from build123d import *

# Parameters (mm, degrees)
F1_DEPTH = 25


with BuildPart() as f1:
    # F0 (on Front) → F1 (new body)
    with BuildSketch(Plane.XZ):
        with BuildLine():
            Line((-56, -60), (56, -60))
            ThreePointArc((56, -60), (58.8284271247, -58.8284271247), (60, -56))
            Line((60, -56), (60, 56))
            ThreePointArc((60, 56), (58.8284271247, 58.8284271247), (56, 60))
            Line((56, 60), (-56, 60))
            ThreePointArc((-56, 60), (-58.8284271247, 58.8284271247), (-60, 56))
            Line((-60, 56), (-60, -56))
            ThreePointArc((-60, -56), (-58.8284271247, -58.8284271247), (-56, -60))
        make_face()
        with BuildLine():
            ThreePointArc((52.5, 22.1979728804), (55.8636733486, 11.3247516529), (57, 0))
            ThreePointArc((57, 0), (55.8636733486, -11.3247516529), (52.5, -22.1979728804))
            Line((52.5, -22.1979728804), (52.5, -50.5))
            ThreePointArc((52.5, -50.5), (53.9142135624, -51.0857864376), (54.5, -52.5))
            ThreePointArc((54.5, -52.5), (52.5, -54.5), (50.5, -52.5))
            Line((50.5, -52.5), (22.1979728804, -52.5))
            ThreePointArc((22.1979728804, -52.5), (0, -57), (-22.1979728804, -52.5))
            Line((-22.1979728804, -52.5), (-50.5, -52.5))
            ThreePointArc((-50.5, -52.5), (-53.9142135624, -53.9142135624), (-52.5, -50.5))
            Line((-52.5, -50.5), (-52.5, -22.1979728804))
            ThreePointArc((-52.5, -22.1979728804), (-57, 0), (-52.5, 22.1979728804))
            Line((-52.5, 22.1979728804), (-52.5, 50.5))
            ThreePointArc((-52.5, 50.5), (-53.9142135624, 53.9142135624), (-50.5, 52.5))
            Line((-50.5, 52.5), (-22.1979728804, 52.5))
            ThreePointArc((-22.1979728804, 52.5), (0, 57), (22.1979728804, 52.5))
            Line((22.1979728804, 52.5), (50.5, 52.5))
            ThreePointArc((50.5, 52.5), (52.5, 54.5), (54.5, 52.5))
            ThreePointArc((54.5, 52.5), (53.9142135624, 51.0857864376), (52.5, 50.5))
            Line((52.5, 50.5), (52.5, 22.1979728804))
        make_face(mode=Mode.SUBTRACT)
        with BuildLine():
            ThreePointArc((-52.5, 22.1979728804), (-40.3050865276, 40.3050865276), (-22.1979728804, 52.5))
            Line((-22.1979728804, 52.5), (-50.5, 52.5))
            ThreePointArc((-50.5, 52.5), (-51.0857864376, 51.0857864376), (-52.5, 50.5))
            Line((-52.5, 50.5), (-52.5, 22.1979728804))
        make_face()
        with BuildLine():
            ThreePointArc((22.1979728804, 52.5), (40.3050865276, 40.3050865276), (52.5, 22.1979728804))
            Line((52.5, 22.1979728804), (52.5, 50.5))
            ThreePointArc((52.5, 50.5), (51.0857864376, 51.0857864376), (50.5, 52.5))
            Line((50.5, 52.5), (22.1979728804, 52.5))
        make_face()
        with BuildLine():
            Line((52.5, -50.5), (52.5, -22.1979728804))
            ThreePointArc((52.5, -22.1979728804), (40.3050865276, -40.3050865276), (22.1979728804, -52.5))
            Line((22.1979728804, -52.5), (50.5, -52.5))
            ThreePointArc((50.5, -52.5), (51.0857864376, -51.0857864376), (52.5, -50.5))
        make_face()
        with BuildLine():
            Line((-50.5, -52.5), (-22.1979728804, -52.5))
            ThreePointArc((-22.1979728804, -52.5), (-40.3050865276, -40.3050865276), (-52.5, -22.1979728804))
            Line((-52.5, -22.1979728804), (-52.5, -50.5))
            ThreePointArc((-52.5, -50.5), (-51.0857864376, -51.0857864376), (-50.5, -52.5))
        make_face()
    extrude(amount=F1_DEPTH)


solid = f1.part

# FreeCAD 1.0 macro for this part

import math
import FreeCAD as App
import Part
import Sketcher

V = App.Vector
Q = App.Units.Quantity

doc = App.newDocument("Part")
body = doc.addObject("PartDesign::Body", "Body")

sketch1 = body.newObject("Sketcher::SketchObject", "Sketch")
sketch1.AttachmentSupport = (doc.getObject("XZ_Plane"), [""])
sketch1.MapMode = "FlatFace"
sketch1.addGeometry([
    Part.LineSegment(V(-56, -60, 0), V(56, -60, 0)),
    Part.ArcOfCircle(Part.Circle(V(56, -56, 0), V(0, 0, 1), 4), math.radians(-90), math.radians(0)),
    Part.LineSegment(V(60, -56, 0), V(60, 56, 0)),
    Part.ArcOfCircle(Part.Circle(V(56, 56, 0), V(0, 0, 1), 4), math.radians(0), math.radians(90)),
    Part.LineSegment(V(56, 60, 0), V(-56, 60, 0)),
    Part.ArcOfCircle(Part.Circle(V(-56, 56, 0), V(0, 0, 1), 4), math.radians(90), math.radians(180)),
    Part.LineSegment(V(-60, 56, 0), V(-60, -56, 0)),
    Part.ArcOfCircle(Part.Circle(V(-56, -56, 0), V(0, 0, 1), 4), math.radians(180), math.radians(270)),
    Part.ArcOfCircle(Part.Circle(V(0, 0, 0), V(0, 0, 1), 57), math.radians(0), math.radians(22.919542)),
    Part.ArcOfCircle(Part.Circle(V(0, 0, 0), V(0, 0, 1), 57), math.radians(-22.919542), math.radians(0)),
    Part.ArcOfCircle(Part.Circle(V(0, 0, 0), V(0, 0, 1), 57), math.radians(-67.080458), math.radians(-22.919542)),
    Part.ArcOfCircle(Part.Circle(V(0, 0, 0), V(0, 0, 1), 57), math.radians(-112.919542), math.radians(-67.080458)),
    Part.ArcOfCircle(Part.Circle(V(0, 0, 0), V(0, 0, 1), 57), math.radians(-157.080458), math.radians(-112.919542)),
    Part.ArcOfCircle(Part.Circle(V(0, 0, 0), V(0, 0, 1), 57), math.radians(157.080458), math.radians(202.919542)),
    Part.ArcOfCircle(Part.Circle(V(0, 0, 0), V(0, 0, 1), 57), math.radians(112.919542), math.radians(157.080458)),
    Part.ArcOfCircle(Part.Circle(V(0, 0, 0), V(0, 0, 1), 57), math.radians(67.080458), math.radians(112.919542)),
    Part.ArcOfCircle(Part.Circle(V(0, 0, 0), V(0, 0, 1), 57), math.radians(22.919542), math.radians(67.080458)),
    Part.ArcOfCircle(Part.Circle(V(-52.5, -52.5, 0), V(0, 0, 1), 2), math.radians(90), math.radians(360)),
    Part.ArcOfCircle(Part.Circle(V(-52.5, -52.5, 0), V(0, 0, 1), 2), math.radians(0), math.radians(90)),
    Part.ArcOfCircle(Part.Circle(V(52.5, -52.5, 0), V(0, 0, 1), 2), math.radians(0), math.radians(90)),
    Part.ArcOfCircle(Part.Circle(V(52.5, -52.5, 0), V(0, 0, 1), 2), math.radians(180), math.radians(360)),
    Part.ArcOfCircle(Part.Circle(V(52.5, -52.5, 0), V(0, 0, 1), 2), math.radians(90), math.radians(180)),
    Part.ArcOfCircle(Part.Circle(V(52.5, 52.5, 0), V(0, 0, 1), 2), math.radians(0), math.radians(180)),
    Part.ArcOfCircle(Part.Circle(V(52.5, 52.5, 0), V(0, 0, 1), 2), math.radians(-90), math.radians(0)),
    Part.ArcOfCircle(Part.Circle(V(52.5, 52.5, 0), V(0, 0, 1), 2), math.radians(180), math.radians(270)),
    Part.ArcOfCircle(Part.Circle(V(-52.5, 52.5, 0), V(0, 0, 1), 2), math.radians(0), math.radians(270)),
    Part.ArcOfCircle(Part.Circle(V(-52.5, 52.5, 0), V(0, 0, 1), 2), math.radians(-90), math.radians(0)),
], False)
sketch1.addConstraint([
    Sketcher.Constraint("Tangent", 0, 2, 1, 1),
    Sketcher.Constraint("Tangent", 1, 2, 2, 1),
    Sketcher.Constraint("Tangent", 2, 2, 3, 1),
    Sketcher.Constraint("Tangent", 3, 2, 4, 1),
    Sketcher.Constraint("Tangent", 4, 2, 5, 1),
    Sketcher.Constraint("Tangent", 5, 2, 6, 1),
    Sketcher.Constraint("Tangent", 6, 2, 7, 1),
    Sketcher.Constraint("Tangent", 7, 2, 0, 1),
    Sketcher.Constraint("Tangent", 8, 1, 9, 2),
    Sketcher.Constraint("Tangent", 9, 1, 10, 2),
    Sketcher.Constraint("Tangent", 10, 1, 11, 2),
    Sketcher.Constraint("Tangent", 11, 1, 12, 2),
    Sketcher.Constraint("Tangent", 12, 1, 13, 2),
    Sketcher.Constraint("Tangent", 13, 1, 14, 2),
    Sketcher.Constraint("Tangent", 14, 1, 15, 2),
    Sketcher.Constraint("Tangent", 15, 1, 16, 2),
    Sketcher.Constraint("Tangent", 16, 1, 8, 2),
    Sketcher.Constraint("Tangent", 17, 1, 18, 2),
    Sketcher.Constraint("Coincident", 18, 1, 17, 2),
    Sketcher.Constraint("Tangent", 19, 1, 20, 2),
    Sketcher.Constraint("Tangent", 20, 1, 21, 2),
    Sketcher.Constraint("Tangent", 21, 1, 19, 2),
    Sketcher.Constraint("Tangent", 22, 1, 23, 2),
    Sketcher.Constraint("Tangent", 23, 1, 24, 2),
    Sketcher.Constraint("Tangent", 24, 1, 22, 2),
    Sketcher.Constraint("Tangent", 25, 1, 26, 2),
    Sketcher.Constraint("Coincident", 26, 1, 25, 2),
    Sketcher.Constraint("Horizontal", 0),
    Sketcher.Constraint("Vertical", 2),
    Sketcher.Constraint("Horizontal", 4),
    Sketcher.Constraint("Vertical", 6),
    Sketcher.Constraint("Coincident", 8, 3, -1, 1),
    Sketcher.Constraint("Coincident", 10, 3, -1, 1),
    Sketcher.Constraint("Coincident", 12, 3, -1, 1),
    Sketcher.Constraint("Coincident", 14, 3, -1, 1),
    Sketcher.Constraint("Equal", 1, 3),
    Sketcher.Constraint("Equal", 3, 5),
    Sketcher.Constraint("Equal", 5, 7),
    Sketcher.Constraint("Equal", 18, 19),
    Sketcher.Constraint("Equal", 21, 22),
    Sketcher.Constraint("Equal", 24, 25),
    Sketcher.Constraint("Symmetric", 1, 3, 5, 3, -1, 1),
    Sketcher.Constraint("Symmetric", 17, 3, 22, 3, -1, 1),
    Sketcher.Constraint("Symmetric", 19, 3, 25, 3, -1, 1),
    Sketcher.Constraint("Symmetric", 17, 3, 19, 3, -2),
    Sketcher.Constraint("PointOnObject", 8, 1, -1),
    Sketcher.Constraint("Horizontal", 21, 3, 10, 1),
    Sketcher.Constraint("Horizontal", 10, 1, 11, 1),
    Sketcher.Constraint("Horizontal", 9, 1, 12, 1),
    Sketcher.Constraint("Horizontal", 26, 3, 14, 1),
    Sketcher.Constraint("Horizontal", 14, 1, 15, 1),
    Sketcher.Constraint("Horizontal", 13, 1, 16, 1),
    Sketcher.Constraint("Horizontal", 11, 1, 18, 1),
    Sketcher.Constraint("Horizontal", 18, 1, 19, 1),
    Sketcher.Constraint("Horizontal", 19, 1, 20, 1),
    Sketcher.Constraint("Horizontal", 15, 1, 22, 1),
    Sketcher.Constraint("Horizontal", 22, 1, 24, 1),
    Sketcher.Constraint("Horizontal", 24, 1, 25, 1),
    Sketcher.Constraint("Vertical", 24, 3, 9, 1),
    Sketcher.Constraint("Vertical", 12, 1, 13, 1),
    Sketcher.Constraint("Vertical", 13, 1, 17, 1),
    Sketcher.Constraint("Vertical", 16, 1, 21, 1),
    Sketcher.Constraint("Vertical", 21, 1, 23, 1),
    Sketcher.Constraint("Vertical", 17, 1, 26, 1),
    Sketcher.Constraint("Equal", 4, 2),
    Sketcher.Constraint("Radius", 1, Q("4 mm")),
    Sketcher.Constraint("Radius", 8, Q("57 mm")),
    Sketcher.Constraint("Radius", 17, Q("2 mm")),
    Sketcher.Constraint("DistanceX", 0, 1, 0, 2, Q("112 mm")),
    Sketcher.Constraint("DistanceX", 17, 3, -1, 1, Q("52.5 mm")),
    Sketcher.Constraint("DistanceY", 17, 3, -1, 1, Q("52.5 mm")),
])
pad1 = body.newObject("PartDesign::Pad", "Pad")
pad1.Profile = sketch1
pad1.Length = 25

doc.recompute()
